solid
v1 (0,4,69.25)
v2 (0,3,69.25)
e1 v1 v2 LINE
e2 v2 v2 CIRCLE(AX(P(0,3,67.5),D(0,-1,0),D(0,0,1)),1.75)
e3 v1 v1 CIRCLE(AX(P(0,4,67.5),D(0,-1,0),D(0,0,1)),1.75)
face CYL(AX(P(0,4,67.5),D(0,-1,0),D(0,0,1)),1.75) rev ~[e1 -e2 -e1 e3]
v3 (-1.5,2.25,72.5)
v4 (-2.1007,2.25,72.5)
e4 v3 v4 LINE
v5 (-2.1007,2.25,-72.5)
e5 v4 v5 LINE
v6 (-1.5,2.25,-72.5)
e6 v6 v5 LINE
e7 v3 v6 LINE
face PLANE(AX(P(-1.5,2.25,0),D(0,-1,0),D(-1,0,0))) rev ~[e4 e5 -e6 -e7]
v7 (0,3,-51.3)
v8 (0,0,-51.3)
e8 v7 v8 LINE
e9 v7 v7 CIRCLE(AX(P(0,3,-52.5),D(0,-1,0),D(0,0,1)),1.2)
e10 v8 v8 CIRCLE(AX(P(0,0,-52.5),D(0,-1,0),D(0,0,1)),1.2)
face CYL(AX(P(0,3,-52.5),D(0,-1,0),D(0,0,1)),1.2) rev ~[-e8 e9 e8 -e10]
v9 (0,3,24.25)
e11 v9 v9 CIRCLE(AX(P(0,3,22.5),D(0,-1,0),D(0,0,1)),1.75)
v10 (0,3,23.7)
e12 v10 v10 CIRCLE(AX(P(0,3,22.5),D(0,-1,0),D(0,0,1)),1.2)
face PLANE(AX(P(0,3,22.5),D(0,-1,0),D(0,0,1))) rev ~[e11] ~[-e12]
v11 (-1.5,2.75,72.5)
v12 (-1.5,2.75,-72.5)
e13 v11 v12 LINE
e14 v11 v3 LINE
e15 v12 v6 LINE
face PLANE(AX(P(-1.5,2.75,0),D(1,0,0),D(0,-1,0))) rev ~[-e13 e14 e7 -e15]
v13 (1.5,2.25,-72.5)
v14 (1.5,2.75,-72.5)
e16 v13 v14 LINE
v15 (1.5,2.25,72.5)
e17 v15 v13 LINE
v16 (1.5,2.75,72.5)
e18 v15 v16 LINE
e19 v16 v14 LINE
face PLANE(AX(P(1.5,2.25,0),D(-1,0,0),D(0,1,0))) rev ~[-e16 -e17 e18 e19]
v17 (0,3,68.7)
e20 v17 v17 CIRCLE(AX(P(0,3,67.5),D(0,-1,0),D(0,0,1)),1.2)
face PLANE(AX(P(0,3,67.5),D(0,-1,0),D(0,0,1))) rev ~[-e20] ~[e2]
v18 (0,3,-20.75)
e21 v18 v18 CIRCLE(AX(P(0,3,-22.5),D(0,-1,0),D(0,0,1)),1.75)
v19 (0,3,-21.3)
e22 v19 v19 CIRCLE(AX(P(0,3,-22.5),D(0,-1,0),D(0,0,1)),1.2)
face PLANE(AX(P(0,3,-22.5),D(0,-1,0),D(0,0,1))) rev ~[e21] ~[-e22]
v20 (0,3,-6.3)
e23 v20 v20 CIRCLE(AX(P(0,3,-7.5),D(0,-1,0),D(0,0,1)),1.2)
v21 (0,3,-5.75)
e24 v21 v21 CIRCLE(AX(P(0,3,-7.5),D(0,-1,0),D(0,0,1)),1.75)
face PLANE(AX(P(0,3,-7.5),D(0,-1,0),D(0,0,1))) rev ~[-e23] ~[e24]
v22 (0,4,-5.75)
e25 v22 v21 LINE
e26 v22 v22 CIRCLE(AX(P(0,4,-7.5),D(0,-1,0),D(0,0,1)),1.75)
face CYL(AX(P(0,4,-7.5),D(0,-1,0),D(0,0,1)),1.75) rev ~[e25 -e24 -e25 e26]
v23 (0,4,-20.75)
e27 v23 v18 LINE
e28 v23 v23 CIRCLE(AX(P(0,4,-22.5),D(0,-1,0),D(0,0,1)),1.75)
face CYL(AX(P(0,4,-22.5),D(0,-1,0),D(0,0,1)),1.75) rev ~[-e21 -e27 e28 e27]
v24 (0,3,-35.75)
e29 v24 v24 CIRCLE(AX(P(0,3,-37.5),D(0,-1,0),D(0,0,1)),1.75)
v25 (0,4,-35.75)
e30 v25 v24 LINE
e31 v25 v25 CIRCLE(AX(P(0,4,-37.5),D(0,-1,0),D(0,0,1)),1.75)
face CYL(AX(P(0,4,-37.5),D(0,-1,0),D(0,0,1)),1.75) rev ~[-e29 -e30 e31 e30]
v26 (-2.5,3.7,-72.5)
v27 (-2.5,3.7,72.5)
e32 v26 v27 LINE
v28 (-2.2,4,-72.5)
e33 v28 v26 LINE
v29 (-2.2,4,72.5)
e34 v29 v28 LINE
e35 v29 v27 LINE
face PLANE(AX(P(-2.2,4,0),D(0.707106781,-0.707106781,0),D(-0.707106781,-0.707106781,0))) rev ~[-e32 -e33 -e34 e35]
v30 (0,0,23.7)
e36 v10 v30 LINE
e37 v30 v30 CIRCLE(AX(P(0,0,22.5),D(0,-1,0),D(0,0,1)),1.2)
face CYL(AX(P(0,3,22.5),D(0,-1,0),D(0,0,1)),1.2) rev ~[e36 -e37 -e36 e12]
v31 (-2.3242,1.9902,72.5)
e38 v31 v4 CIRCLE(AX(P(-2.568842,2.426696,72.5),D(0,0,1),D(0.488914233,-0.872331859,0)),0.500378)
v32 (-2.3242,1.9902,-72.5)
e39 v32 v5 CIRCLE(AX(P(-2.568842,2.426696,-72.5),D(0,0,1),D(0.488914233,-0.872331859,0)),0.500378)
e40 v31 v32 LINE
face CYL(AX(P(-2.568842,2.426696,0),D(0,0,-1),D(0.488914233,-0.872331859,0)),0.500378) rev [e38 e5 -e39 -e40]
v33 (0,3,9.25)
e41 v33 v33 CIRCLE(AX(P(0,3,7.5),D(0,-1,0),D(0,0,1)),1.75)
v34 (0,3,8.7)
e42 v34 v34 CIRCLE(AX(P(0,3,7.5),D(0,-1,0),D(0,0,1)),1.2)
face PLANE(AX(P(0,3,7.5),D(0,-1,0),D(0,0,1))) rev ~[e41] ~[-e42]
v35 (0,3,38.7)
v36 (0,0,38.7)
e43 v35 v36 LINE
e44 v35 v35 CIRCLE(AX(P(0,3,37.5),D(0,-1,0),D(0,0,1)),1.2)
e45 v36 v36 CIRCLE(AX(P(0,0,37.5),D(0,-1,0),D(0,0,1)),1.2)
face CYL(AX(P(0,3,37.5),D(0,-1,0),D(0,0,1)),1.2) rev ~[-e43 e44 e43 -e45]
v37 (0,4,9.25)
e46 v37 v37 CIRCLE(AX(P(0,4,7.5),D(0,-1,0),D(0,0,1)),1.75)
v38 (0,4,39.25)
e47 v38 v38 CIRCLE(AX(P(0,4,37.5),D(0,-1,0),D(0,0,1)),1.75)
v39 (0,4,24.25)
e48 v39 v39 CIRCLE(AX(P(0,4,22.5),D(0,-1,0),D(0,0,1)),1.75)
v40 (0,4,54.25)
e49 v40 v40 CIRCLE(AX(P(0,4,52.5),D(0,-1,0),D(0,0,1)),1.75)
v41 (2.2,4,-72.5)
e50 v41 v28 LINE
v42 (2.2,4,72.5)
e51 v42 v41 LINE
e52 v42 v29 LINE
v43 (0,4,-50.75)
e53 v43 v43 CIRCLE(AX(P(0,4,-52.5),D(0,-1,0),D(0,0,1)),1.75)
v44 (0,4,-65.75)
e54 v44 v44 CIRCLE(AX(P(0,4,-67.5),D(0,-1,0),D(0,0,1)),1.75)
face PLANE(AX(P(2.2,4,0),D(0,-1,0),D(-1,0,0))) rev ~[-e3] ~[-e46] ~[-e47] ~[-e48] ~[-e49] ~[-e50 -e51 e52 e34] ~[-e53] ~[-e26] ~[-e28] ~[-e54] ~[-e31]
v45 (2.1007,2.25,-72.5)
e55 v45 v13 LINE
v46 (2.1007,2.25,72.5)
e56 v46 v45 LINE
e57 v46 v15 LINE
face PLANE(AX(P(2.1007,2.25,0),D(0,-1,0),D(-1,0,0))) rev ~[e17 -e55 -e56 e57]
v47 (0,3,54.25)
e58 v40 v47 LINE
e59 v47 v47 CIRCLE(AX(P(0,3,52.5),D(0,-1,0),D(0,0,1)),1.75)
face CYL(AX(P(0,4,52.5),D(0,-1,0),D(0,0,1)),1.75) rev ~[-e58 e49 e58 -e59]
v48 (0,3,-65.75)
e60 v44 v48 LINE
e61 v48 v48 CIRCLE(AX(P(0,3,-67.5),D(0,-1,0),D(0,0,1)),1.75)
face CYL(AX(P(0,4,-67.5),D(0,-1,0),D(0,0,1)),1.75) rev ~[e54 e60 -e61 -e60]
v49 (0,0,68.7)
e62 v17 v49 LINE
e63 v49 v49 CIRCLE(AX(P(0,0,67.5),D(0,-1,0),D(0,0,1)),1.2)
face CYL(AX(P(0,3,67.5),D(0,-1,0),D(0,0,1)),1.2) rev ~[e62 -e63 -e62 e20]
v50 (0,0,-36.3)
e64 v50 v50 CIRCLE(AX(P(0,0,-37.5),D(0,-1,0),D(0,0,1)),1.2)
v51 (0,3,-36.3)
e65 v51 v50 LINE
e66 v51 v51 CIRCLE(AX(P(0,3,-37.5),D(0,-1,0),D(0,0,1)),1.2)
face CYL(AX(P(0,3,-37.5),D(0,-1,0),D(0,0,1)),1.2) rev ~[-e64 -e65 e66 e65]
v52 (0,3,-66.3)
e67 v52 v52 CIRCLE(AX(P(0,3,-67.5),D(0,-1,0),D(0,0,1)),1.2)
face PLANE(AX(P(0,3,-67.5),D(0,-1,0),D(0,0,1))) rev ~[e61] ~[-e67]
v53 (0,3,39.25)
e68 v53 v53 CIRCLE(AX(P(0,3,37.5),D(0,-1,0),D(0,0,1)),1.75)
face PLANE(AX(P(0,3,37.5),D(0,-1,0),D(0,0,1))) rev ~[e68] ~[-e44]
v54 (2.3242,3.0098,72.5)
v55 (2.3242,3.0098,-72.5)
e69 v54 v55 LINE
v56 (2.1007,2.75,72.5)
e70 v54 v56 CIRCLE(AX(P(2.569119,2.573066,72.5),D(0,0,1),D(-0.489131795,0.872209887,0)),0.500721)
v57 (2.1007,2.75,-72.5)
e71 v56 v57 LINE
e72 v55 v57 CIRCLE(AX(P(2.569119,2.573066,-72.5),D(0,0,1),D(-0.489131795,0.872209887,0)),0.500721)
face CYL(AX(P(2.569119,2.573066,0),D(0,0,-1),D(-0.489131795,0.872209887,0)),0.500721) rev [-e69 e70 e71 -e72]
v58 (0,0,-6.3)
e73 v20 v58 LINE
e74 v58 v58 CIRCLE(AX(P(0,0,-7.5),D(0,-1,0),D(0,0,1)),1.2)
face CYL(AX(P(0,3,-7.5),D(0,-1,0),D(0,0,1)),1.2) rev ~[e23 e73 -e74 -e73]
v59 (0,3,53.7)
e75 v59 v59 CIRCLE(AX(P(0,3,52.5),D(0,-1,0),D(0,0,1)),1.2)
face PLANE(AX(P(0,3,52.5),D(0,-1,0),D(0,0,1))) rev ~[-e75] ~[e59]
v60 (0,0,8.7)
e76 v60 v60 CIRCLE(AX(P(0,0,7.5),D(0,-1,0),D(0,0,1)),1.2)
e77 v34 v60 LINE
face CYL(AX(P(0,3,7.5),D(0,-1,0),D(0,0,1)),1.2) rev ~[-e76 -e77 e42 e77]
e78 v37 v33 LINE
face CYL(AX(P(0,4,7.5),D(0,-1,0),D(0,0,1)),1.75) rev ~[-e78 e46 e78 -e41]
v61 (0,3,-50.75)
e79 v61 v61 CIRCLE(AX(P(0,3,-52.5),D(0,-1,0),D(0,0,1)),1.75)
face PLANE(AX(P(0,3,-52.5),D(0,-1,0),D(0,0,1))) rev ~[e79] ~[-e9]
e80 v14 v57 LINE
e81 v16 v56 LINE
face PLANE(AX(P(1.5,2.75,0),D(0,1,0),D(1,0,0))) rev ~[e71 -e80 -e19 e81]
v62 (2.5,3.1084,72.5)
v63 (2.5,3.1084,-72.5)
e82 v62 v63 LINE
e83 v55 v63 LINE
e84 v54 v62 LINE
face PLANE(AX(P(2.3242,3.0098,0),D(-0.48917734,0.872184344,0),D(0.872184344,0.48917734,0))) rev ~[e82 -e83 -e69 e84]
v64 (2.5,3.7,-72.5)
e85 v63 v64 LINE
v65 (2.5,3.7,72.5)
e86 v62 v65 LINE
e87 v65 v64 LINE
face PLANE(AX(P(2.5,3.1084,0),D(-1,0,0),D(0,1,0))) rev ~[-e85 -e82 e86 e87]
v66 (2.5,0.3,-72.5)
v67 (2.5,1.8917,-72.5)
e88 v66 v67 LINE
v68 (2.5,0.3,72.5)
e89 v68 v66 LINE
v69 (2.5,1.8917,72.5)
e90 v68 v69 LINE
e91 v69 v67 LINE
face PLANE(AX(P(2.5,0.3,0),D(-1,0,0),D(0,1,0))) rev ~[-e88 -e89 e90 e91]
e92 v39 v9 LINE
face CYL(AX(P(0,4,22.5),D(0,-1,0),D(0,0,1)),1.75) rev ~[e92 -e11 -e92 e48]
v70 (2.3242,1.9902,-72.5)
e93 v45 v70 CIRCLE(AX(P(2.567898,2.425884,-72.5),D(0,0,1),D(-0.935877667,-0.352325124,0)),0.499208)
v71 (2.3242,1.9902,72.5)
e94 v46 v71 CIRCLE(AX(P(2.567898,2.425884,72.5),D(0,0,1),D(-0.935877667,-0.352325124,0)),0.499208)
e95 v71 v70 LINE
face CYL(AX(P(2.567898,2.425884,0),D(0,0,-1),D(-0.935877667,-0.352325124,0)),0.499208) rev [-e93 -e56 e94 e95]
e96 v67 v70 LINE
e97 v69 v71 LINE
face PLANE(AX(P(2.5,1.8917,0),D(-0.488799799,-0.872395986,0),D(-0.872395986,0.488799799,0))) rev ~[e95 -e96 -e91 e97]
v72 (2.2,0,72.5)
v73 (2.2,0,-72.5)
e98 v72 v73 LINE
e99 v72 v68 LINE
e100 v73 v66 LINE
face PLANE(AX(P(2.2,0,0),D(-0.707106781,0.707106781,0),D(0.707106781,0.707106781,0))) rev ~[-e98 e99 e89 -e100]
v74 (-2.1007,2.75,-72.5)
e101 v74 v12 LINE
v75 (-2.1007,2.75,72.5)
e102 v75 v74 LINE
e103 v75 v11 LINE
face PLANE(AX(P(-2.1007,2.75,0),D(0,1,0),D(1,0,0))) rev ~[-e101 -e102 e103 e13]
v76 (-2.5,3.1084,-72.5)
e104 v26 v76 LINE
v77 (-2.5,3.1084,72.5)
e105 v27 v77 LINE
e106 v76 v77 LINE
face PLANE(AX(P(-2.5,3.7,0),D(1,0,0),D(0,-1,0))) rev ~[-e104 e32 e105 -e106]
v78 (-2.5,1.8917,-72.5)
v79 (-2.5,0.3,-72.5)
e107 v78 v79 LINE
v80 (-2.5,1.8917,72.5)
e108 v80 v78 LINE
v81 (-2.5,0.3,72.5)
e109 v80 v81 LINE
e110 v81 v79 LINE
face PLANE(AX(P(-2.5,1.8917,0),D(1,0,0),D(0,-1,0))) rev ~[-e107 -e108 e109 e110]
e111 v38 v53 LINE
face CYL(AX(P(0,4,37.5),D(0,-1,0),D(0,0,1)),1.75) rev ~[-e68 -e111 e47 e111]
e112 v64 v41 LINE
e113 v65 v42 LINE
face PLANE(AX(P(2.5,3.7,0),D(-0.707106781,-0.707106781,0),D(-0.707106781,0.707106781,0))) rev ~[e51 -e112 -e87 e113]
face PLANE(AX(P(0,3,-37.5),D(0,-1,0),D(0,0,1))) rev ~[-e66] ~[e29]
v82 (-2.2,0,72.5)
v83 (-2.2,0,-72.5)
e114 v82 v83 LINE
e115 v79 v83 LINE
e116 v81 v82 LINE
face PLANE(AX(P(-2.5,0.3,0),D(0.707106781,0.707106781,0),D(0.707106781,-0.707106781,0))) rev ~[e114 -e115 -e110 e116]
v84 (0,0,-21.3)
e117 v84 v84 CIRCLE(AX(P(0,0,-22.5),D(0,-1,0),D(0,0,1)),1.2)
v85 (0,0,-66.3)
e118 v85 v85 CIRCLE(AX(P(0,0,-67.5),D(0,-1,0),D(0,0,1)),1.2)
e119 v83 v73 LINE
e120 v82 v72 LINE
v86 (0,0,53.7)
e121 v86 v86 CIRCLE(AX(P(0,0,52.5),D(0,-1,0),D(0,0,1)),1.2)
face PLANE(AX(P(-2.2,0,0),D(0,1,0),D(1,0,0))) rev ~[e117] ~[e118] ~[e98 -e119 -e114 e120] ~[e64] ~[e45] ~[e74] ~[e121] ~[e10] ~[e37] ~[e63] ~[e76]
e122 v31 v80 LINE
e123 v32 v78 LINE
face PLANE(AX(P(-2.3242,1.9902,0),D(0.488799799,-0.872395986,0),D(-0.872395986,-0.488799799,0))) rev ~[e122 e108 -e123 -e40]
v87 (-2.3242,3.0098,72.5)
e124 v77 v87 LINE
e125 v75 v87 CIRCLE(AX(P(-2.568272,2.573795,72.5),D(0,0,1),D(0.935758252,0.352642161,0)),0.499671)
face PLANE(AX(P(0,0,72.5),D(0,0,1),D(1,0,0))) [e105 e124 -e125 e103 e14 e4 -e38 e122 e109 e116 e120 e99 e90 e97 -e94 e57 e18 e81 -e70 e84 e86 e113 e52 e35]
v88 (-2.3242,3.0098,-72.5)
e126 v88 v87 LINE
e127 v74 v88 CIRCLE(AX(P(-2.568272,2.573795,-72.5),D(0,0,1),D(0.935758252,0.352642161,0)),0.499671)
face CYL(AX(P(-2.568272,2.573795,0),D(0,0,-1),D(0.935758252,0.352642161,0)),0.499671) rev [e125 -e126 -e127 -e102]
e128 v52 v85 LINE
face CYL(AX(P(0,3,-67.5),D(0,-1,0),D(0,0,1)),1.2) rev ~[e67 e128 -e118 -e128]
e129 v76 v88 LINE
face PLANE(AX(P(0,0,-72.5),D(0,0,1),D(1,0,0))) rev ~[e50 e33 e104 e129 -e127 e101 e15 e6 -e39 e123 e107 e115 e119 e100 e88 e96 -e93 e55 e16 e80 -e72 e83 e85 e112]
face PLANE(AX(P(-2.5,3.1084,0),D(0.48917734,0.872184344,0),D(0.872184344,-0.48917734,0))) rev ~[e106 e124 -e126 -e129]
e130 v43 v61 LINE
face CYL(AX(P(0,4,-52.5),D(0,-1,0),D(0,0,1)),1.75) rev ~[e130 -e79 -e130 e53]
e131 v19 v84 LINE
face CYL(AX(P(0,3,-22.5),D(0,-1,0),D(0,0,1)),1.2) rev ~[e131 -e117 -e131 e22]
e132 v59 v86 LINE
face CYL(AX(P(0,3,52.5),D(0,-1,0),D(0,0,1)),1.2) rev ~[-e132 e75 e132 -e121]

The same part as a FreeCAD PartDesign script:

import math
import FreeCAD as App
import Part
import Sketcher

V = App.Vector
Q = App.Units.Quantity

doc = App.newDocument("Part")
params = doc.addObject("Spreadsheet::Sheet", "Params")
for row, (alias, value) in enumerate([
    ("sketch1_radius", "0.5 mm"),
    ("sketch1_width", "4.4 mm"),
    ("sketch1_height", "0.5 mm"),
    ("pad1_length", "145 mm"),
    ("sketch2_diameter", "2.4 mm"),
    ("hole_diameter", "2.4 mm"),
    ("hole_depth", "4 mm"),
    ("hole_cbore_diameter", "3.5 mm"),
    ("hole_cbore_depth", "1 mm"),
    ("linearpattern_pitch", "15 mm"),
], start=1):
    params.set(f"A{row}", alias)
    params.set(f"B{row}", "=" + value)
    params.setAlias(f"B{row}", alias)

body = doc.addObject("PartDesign::Body", "Body")

# Sketch on XY plane
sketch1 = body.newObject("Sketcher::SketchObject", "Sketch")
sketch1.AttachmentSupport = (doc.getObject("XY_Plane"), [""])
sketch1.MapMode = "FlatFace"
sketch1.addGeometry(Part.LineSegment(V(-2.2, 4, 0), V(-2.5, 3.7, 0)), False)
sketch1.addGeometry(Part.LineSegment(V(-2.5, 3.7, 0), V(-2.5, 3.1084, 0)), False)
sketch1.addGeometry(Part.LineSegment(V(-2.5, 3.1084, 0), V(-2.3242, 3.0098, 0)), False)
sketch1.addGeometry(Part.ArcOfCircle(Part.Circle(V(-2.5686, 2.5736, 0), V(0, 0, 1), 0.500047), math.radians(20.656625), math.radians(60.738376)), False)
sketch1.addGeometry(Part.LineSegment(V(-2.1007, 2.75, 0), V(-1.5, 2.75, 0)), False)
sketch1.addGeometry(Part.LineSegment(V(-1.5, 2.75, 0), V(-1.5, 2.25, 0)), False)
sketch1.addGeometry(Part.LineSegment(V(-1.5, 2.25, 0), V(-2.1007, 2.25, 0)), False)
sketch1.addGeometry(Part.ArcOfCircle(Part.Circle(V(-2.5686, 2.4264, 0), V(0, 0, 1), 0.500002), math.radians(-60.738376), math.radians(-20.656625)), False)
sketch1.addGeometry(Part.LineSegment(V(-2.3242, 1.9902, 0), V(-2.5, 1.8917, 0)), False)
sketch1.addGeometry(Part.LineSegment(V(-2.5, 1.8917, 0), V(-2.5, 0.3, 0)), False)
sketch1.addGeometry(Part.LineSegment(V(-2.5, 0.3, 0), V(-2.2, 0, 0)), False)
sketch1.addGeometry(Part.LineSegment(V(-2.2, 0, 0), V(2.2, 0, 0)), False)
sketch1.addGeometry(Part.LineSegment(V(2.2, 0, 0), V(2.5, 0.3, 0)), False)
sketch1.addGeometry(Part.LineSegment(V(2.5, 0.3, 0), V(2.5, 1.8917, 0)), False)
sketch1.addGeometry(Part.LineSegment(V(2.5, 1.8917, 0), V(2.3242, 1.9902, 0)), False)
sketch1.addGeometry(Part.ArcOfCircle(Part.Circle(V(2.5686, 2.4263, 0), V(0, 0, 1), 0.500012), math.radians(-159.354097), math.radians(-119.267226)), False)
sketch1.addGeometry(Part.LineSegment(V(2.1007, 2.25, 0), V(1.5, 2.25, 0)), False)
sketch1.addGeometry(Part.LineSegment(V(1.5, 2.25, 0), V(1.5, 2.75, 0)), False)
sketch1.addGeometry(Part.LineSegment(V(1.5, 2.75, 0), V(2.1007, 2.75, 0)), False)
sketch1.addGeometry(Part.ArcOfCircle(Part.Circle(V(2.5686, 2.5737, 0), V(0, 0, 1), 0.499915), math.radians(119.267226), math.radians(159.354097)), False)
sketch1.addGeometry(Part.LineSegment(V(2.3242, 3.0098, 0), V(2.5, 3.1084, 0)), False)
sketch1.addGeometry(Part.LineSegment(V(2.5, 3.1084, 0), V(2.5, 3.7, 0)), False)
sketch1.addGeometry(Part.LineSegment(V(2.5, 3.7, 0), V(2.2, 4, 0)), False)
sketch1.addGeometry(Part.LineSegment(V(2.2, 4, 0), V(-2.2, 4, 0)), False)
sketch1.addConstraint(Sketcher.Constraint("Coincident", 0, 2, 1, 1))
sketch1.addConstraint(Sketcher.Constraint("Coincident", 1, 2, 2, 1))
sketch1.addConstraint(Sketcher.Constraint("Tangent", 2, 2, 3, 2))
sketch1.addConstraint(Sketcher.Constraint("Coincident", 3, 1, 4, 1))
sketch1.addConstraint(Sketcher.Constraint("Coincident", 4, 2, 5, 1))
sketch1.addConstraint(Sketcher.Constraint("Coincident", 5, 2, 6, 1))
sketch1.addConstraint(Sketcher.Constraint("Coincident", 6, 2, 7, 2))
sketch1.addConstraint(Sketcher.Constraint("Tangent", 7, 1, 8, 1))
sketch1.addConstraint(Sketcher.Constraint("Coincident", 8, 2, 9, 1))
sketch1.addConstraint(Sketcher.Constraint("Coincident", 9, 2, 10, 1))
sketch1.addConstraint(Sketcher.Constraint("Coincident", 10, 2, 11, 1))
sketch1.addConstraint(Sketcher.Constraint("Coincident", 11, 2, 12, 1))
sketch1.addConstraint(Sketcher.Constraint("Coincident", 12, 2, 13, 1))
sketch1.addConstraint(Sketcher.Constraint("Coincident", 13, 2, 14, 1))
sketch1.addConstraint(Sketcher.Constraint("Tangent", 14, 2, 15, 2))
sketch1.addConstraint(Sketcher.Constraint("Coincident", 15, 1, 16, 1))
sketch1.addConstraint(Sketcher.Constraint("Coincident", 16, 2, 17, 1))
sketch1.addConstraint(Sketcher.Constraint("Coincident", 17, 2, 18, 1))
sketch1.addConstraint(Sketcher.Constraint("Coincident", 18, 2, 19, 2))
sketch1.addConstraint(Sketcher.Constraint("Tangent", 19, 1, 20, 1))
sketch1.addConstraint(Sketcher.Constraint("Coincident", 20, 2, 21, 1))
sketch1.addConstraint(Sketcher.Constraint("Coincident", 21, 2, 22, 1))
sketch1.addConstraint(Sketcher.Constraint("Coincident", 22, 2, 23, 1))
sketch1.addConstraint(Sketcher.Constraint("Coincident", 23, 2, 0, 1))
sketch1.addConstraint(Sketcher.Constraint("Vertical", 1))
sketch1.addConstraint(Sketcher.Constraint("Horizontal", 4))
sketch1.addConstraint(Sketcher.Constraint("Vertical", 5))
sketch1.addConstraint(Sketcher.Constraint("Horizontal", 6))
sketch1.addConstraint(Sketcher.Constraint("Vertical", 9))
sketch1.addConstraint(Sketcher.Constraint("Horizontal", 11))
sketch1.addConstraint(Sketcher.Constraint("Vertical", 13))
sketch1.addConstraint(Sketcher.Constraint("Horizontal", 16))
sketch1.addConstraint(Sketcher.Constraint("Vertical", 17))
sketch1.addConstraint(Sketcher.Constraint("Horizontal", 18))
sketch1.addConstraint(Sketcher.Constraint("Vertical", 21))
sketch1.addConstraint(Sketcher.Constraint("Horizontal", 23))
sketch1.addConstraint(Sketcher.Constraint("Equal", 3, 7))
sketch1.addConstraint(Sketcher.Constraint("Equal", 7, 15))
sketch1.addConstraint(Sketcher.Constraint("Equal", 15, 19))
sketch1.addConstraint(Sketcher.Constraint("Symmetric", 10, 2, 11, 2, -1, 1))
sketch1.addConstraint(Sketcher.Constraint("Symmetric", 7, 3, 15, 3, -2))
sketch1.addConstraint(Sketcher.Constraint("Symmetric", 3, 3, 19, 3, -2))
sketch1.addConstraint(Sketcher.Constraint("Symmetric", 9, 2, 12, 2, -2))
sketch1.addConstraint(Sketcher.Constraint("Symmetric", 5, 2, 16, 2, -2))
sketch1.addConstraint(Sketcher.Constraint("Symmetric", 1, 2, 20, 2, -2))
sketch1.addConstraint(Sketcher.Constraint("Perpendicular", 0, 10))
sketch1.addConstraint(Sketcher.Constraint("Perpendicular", 10, 12))
sketch1.addConstraint(Sketcher.Constraint("Parallel", 2, 14))
sketch1.addConstraint(Sketcher.Constraint("Parallel", 8, 20))
sketch1.addConstraint(Sketcher.Constraint("Perpendicular", 12, 22))
sketch1.addConstraint(Sketcher.Constraint("Horizontal", 4, 2, 17, 2))
sketch1.addConstraint(Sketcher.Constraint("Horizontal", 0, 2, 21, 2))
sketch1.addConstraint(Sketcher.Constraint("Vertical", 3, 3, 7, 3))
sketch1.addConstraint(Sketcher.Constraint("Vertical", 3, 1, 6, 2))
sketch1.addConstraint(Sketcher.Constraint("Vertical", 1, 2, 8, 2))
sketch1.addConstraint(Sketcher.Constraint("Vertical", 11, 2, 22, 2))
sketch1.addConstraint(Sketcher.Constraint("Radius", 3, Q("0.5 mm")))
sketch1.addConstraint(Sketcher.Constraint("DistanceX", 11, 1, 11, 2, Q("4.4 mm")))
sketch1.addConstraint(Sketcher.Constraint("DistanceY", 5, 2, 5, 1, Q("0.5 mm")))
sketch1.addConstraint(Sketcher.Constraint("DistanceY", -1, 1, 22, 2, Q("4 mm")))
sketch1.addConstraint(Sketcher.Constraint("DistanceX", 1, 2, 4, 2, Q("1 mm")))
sketch1.addConstraint(Sketcher.Constraint("DistanceX", 5, 2, 12, 2, Q("4 mm")))
sketch1.addConstraint(Sketcher.Constraint("DistanceY", -1, 1, 3, 1, Q("2.75 mm")))
sketch1.addConstraint(Sketcher.Constraint("DistanceX", 4, 1, 4, 2, Q("0.6007 mm")))
sketch1.addConstraint(Sketcher.Constraint("DistanceY", 1, 2, 1, 1, Q("0.5916 mm")))
sketch1.addConstraint(Sketcher.Constraint("DistanceY", 7, 3, 1, 2, Q("0.682 mm")))
sketch1.setExpression("Constraints[56]", "Params.sketch1_radius")
sketch1.setExpression("Constraints[57]", "Params.sketch1_width")
sketch1.setExpression("Constraints[58]", "Params.sketch1_height")
pad1 = body.newObject("PartDesign::Pad", "Pad")
pad1.Profile = sketch1
pad1.setExpression("Length", "Params.pad1_length")
pad1.Midplane = True

# Sketch on XZ plane
sketch2 = body.newObject("Sketcher::SketchObject", "Sketch001")
sketch2.AttachmentSupport = (doc.getObject("XZ_Plane"), [""])
sketch2.MapMode = "FlatFace"
sketch2.AttachmentOffset = App.Placement(V(0, 0, -4), App.Rotation())
sketch2.addGeometry(Part.Circle(V(0, -67.5, 0), V(0, 0, 1), 1.2), False)
sketch2.addConstraint(Sketcher.Constraint("PointOnObject", 0, 3, -2))
sketch2.addConstraint(Sketcher.Constraint("Diameter", 0, Q("2.4 mm")))
sketch2.addConstraint(Sketcher.Constraint("DistanceY", 0, 3, -1, 1, Q("67.5 mm")))
sketch2.setExpression("Constraints[1]", "Params.sketch2_diameter")
doc.recompute()
hole = body.newObject("PartDesign::Hole", "Hole")
hole.Profile = sketch2
hole.ThreadType = "None"
hole.setExpression("Diameter", "Params.hole_diameter")
hole.DepthType = "Dimension"
hole.setExpression("Depth", "Params.hole_depth")
hole.DrillPoint = "Flat"
hole.HoleCutType = "Counterbore"
hole.setExpression("HoleCutDiameter", "Params.hole_cbore_diameter")
hole.setExpression("HoleCutDepth", "Params.hole_cbore_depth")
hole.Reversed = True
doc.recompute()

linearpattern = body.newObject("PartDesign::LinearPattern", "LinearPattern")
linearpattern.Originals = [hole]
linearpattern.Direction = (doc.getObject("Z_Axis"), [""])
linearpattern.Mode = "offset"
linearpattern.setExpression("Offset", "Params.linearpattern_pitch")
linearpattern.Occurrences = 10
body.Tip = linearpattern

doc.recompute()
